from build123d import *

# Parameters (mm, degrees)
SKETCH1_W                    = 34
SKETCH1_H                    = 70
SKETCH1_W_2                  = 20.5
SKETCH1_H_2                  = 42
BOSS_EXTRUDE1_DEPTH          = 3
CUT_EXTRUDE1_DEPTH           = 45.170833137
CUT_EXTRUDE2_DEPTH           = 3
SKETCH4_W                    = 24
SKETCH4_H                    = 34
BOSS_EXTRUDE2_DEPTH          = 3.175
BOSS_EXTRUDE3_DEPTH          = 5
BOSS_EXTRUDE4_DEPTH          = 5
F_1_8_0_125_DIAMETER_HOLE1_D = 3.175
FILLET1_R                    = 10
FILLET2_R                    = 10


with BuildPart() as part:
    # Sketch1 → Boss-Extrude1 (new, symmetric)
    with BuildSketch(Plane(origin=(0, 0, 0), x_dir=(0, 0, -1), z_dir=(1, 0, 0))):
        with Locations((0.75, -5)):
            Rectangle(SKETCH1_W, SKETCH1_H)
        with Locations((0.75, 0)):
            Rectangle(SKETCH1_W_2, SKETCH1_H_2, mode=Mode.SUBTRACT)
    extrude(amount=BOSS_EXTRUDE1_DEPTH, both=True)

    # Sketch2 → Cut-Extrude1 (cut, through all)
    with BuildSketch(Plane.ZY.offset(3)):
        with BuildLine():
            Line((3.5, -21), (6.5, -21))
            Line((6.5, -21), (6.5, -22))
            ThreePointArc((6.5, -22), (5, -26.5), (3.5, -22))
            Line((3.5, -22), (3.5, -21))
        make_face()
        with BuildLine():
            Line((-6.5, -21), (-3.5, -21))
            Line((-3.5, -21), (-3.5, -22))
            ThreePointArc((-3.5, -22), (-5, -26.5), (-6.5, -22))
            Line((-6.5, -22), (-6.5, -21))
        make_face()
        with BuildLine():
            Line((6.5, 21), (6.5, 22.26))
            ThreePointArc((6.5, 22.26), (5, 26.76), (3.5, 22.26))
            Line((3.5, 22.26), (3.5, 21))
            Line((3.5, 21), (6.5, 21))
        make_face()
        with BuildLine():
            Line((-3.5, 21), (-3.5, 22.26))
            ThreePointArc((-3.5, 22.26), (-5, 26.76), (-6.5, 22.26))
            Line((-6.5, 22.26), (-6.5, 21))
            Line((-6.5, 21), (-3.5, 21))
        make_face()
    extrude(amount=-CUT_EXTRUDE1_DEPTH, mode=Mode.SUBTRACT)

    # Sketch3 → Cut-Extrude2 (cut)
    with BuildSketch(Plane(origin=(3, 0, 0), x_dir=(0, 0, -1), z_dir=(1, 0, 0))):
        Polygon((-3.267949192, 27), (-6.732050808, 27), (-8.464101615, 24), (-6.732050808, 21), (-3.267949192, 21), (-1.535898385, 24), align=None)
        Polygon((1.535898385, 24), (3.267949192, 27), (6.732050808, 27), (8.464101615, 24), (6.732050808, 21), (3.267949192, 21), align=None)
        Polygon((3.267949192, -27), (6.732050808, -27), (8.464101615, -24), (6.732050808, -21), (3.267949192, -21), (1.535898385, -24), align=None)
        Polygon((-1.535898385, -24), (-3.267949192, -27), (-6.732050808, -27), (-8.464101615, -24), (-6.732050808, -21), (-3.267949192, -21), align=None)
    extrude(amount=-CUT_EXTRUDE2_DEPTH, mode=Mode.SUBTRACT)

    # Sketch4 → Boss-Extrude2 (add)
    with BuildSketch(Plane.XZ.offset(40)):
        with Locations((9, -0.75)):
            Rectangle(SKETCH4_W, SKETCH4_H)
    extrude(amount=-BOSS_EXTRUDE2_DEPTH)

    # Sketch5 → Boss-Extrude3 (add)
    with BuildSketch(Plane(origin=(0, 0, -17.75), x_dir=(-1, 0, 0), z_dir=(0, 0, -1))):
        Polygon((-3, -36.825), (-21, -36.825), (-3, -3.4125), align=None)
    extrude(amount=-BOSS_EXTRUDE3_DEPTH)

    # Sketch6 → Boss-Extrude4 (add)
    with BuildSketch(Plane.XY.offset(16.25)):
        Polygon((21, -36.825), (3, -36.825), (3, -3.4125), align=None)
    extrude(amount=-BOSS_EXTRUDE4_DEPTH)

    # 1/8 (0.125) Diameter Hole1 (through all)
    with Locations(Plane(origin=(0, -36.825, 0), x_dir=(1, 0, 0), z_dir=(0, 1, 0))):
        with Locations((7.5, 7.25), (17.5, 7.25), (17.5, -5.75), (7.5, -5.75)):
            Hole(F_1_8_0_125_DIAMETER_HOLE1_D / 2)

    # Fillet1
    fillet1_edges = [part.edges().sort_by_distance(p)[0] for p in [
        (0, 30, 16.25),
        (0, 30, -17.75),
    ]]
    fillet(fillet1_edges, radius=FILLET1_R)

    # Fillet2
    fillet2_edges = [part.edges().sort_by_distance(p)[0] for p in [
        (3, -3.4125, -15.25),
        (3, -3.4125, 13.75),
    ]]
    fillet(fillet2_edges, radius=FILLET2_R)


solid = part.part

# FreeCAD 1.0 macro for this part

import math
import FreeCAD as App
import Part
import Sketcher
Q = App.Units.Quantity


def edges_at(feature, points):
    """Names of the edges that pass closest to the given points."""
    edges = feature.Shape.Edges
    near = lambda p: min(range(len(edges)), key=lambda i: edges[i].distToShape(Part.Vertex(*p))[0])
    return sorted({f"Edge{near(p) + 1}" for p in points})

doc = App.newDocument("Part")
body = doc.addObject("PartDesign::Body", "Body")

# Sketch on YZ plane
sketch1 = body.newObject("Sketcher::SketchObject", "Sketch")
sketch1.AttachmentSupport = (doc.getObject("YZ_Plane"), [""])
sketch1.MapMode = "FlatFace"
sketch1.addGeometry(Part.LineSegment(App.Vector(30, 16.25, 0), App.Vector(-40, 16.25, 0)), False)
sketch1.addGeometry(Part.LineSegment(App.Vector(-40, 16.25, 0), App.Vector(-40, -17.75, 0)), False)
sketch1.addGeometry(Part.LineSegment(App.Vector(-40, -17.75, 0), App.Vector(30, -17.75, 0)), False)
sketch1.addGeometry(Part.LineSegment(App.Vector(30, -17.75, 0), App.Vector(30, 16.25, 0)), False)
sketch1.addGeometry(Part.LineSegment(App.Vector(-21, -11, 0), App.Vector(-21, 9.5, 0)), False)
sketch1.addGeometry(Part.LineSegment(App.Vector(-21, 9.5, 0), App.Vector(21, 9.5, 0)), False)
sketch1.addGeometry(Part.LineSegment(App.Vector(21, 9.5, 0), App.Vector(21, -11, 0)), False)
sketch1.addGeometry(Part.LineSegment(App.Vector(21, -11, 0), App.Vector(-21, -11, 0)), False)
sketch1.addConstraint(Sketcher.Constraint("Coincident", 0, 2, 1, 1))
sketch1.addConstraint(Sketcher.Constraint("Coincident", 1, 2, 2, 1))
sketch1.addConstraint(Sketcher.Constraint("Coincident", 2, 2, 3, 1))
sketch1.addConstraint(Sketcher.Constraint("Coincident", 3, 2, 0, 1))
sketch1.addConstraint(Sketcher.Constraint("Coincident", 4, 2, 5, 1))
sketch1.addConstraint(Sketcher.Constraint("Coincident", 5, 2, 6, 1))
sketch1.addConstraint(Sketcher.Constraint("Coincident", 6, 2, 7, 1))
sketch1.addConstraint(Sketcher.Constraint("Coincident", 7, 2, 4, 1))
sketch1.addConstraint(Sketcher.Constraint("Horizontal", 0))
sketch1.addConstraint(Sketcher.Constraint("Vertical", 1))
sketch1.addConstraint(Sketcher.Constraint("Horizontal", 2))
sketch1.addConstraint(Sketcher.Constraint("Vertical", 3))
sketch1.addConstraint(Sketcher.Constraint("Vertical", 4))
sketch1.addConstraint(Sketcher.Constraint("Horizontal", 5))
sketch1.addConstraint(Sketcher.Constraint("Vertical", 6))
sketch1.addConstraint(Sketcher.Constraint("Horizontal", 7))
sketch1.addConstraint(Sketcher.Constraint("DistanceX", 0, 2, 0, 1, Q("70 mm")))
sketch1.addConstraint(Sketcher.Constraint("DistanceX", 5, 1, 5, 2, Q("42 mm")))
sketch1.addConstraint(Sketcher.Constraint("DistanceY", 1, 2, 1, 1, Q("34 mm")))
sketch1.addConstraint(Sketcher.Constraint("DistanceY", 4, 1, 4, 2, Q("20.5 mm")))
sketch1.addConstraint(Sketcher.Constraint("DistanceX", 0, 2, -1, 1, Q("40 mm")))
sketch1.addConstraint(Sketcher.Constraint("DistanceX", 4, 2, -1, 1, Q("21 mm")))
sketch1.addConstraint(Sketcher.Constraint("DistanceY", 6, 2, -1, 1, Q("11 mm")))
sketch1.addConstraint(Sketcher.Constraint("DistanceY", -1, 1, 0, 2, Q("16.25 mm")))
pad1 = body.newObject("PartDesign::Pad", "Pad")
pad1.Profile = sketch1
pad1.Length = 6
pad1.Midplane = True

# Sketch on YZ plane
sketch2 = body.newObject("Sketcher::SketchObject", "Sketch001")
sketch2.AttachmentSupport = (doc.getObject("YZ_Plane"), [""])
sketch2.MapMode = "FlatFace"
sketch2.AttachmentOffset = App.Placement(App.Vector(0, 0, -3), App.Rotation())
sketch2.addGeometry(Part.LineSegment(App.Vector(-21, 6.5, 0), App.Vector(-21, 3.5, 0)), False)
sketch2.addGeometry(Part.LineSegment(App.Vector(-21, 3.5, 0), App.Vector(-22, 3.5, 0)), False)
sketch2.addGeometry(Part.ArcOfCircle(Part.Circle(App.Vector(-24, 5, 0), App.Vector(0, 0, 1), 2.5), math.radians(36.869898), math.radians(323.130102)), False)
sketch2.addGeometry(Part.LineSegment(App.Vector(-22, 6.5, 0), App.Vector(-21, 6.5, 0)), False)
sketch2.addGeometry(Part.LineSegment(App.Vector(-21, -3.5, 0), App.Vector(-21, -6.5, 0)), False)
sketch2.addGeometry(Part.LineSegment(App.Vector(-21, -6.5, 0), App.Vector(-22, -6.5, 0)), False)
sketch2.addGeometry(Part.ArcOfCircle(Part.Circle(App.Vector(-24, -5, 0), App.Vector(0, 0, 1), 2.5), math.radians(36.869898), math.radians(323.130102)), False)
sketch2.addGeometry(Part.LineSegment(App.Vector(-22, -3.5, 0), App.Vector(-21, -3.5, 0)), False)
sketch2.addGeometry(Part.LineSegment(App.Vector(21, 6.5, 0), App.Vector(22.26, 6.5, 0)), False)
sketch2.addGeometry(Part.ArcOfCircle(Part.Circle(App.Vector(24.26, 5, 0), App.Vector(0, 0, 1), 2.5), math.radians(-143.130102), math.radians(143.130102)), False)
sketch2.addGeometry(Part.LineSegment(App.Vector(22.26, 3.5, 0), App.Vector(21, 3.5, 0)), False)
sketch2.addGeometry(Part.LineSegment(App.Vector(21, 3.5, 0), App.Vector(21, 6.5, 0)), False)
sketch2.addGeometry(Part.LineSegment(App.Vector(21, -3.5, 0), App.Vector(22.26, -3.5, 0)), False)
sketch2.addGeometry(Part.ArcOfCircle(Part.Circle(App.Vector(24.26, -5, 0), App.Vector(0, 0, 1), 2.5), math.radians(-143.130102), math.radians(143.130102)), False)
sketch2.addGeometry(Part.LineSegment(App.Vector(22.26, -6.5, 0), App.Vector(21, -6.5, 0)), False)
sketch2.addGeometry(Part.LineSegment(App.Vector(21, -6.5, 0), App.Vector(21, -3.5, 0)), False)
sketch2.addConstraint(Sketcher.Constraint("Coincident", 0, 2, 1, 1))
sketch2.addConstraint(Sketcher.Constraint("Coincident", 1, 2, 2, 2))
sketch2.addConstraint(Sketcher.Constraint("Coincident", 2, 1, 3, 1))
sketch2.addConstraint(Sketcher.Constraint("Coincident", 3, 2, 0, 1))
sketch2.addConstraint(Sketcher.Constraint("Coincident", 4, 2, 5, 1))
sketch2.addConstraint(Sketcher.Constraint("Coincident", 5, 2, 6, 2))
sketch2.addConstraint(Sketcher.Constraint("Coincident", 6, 1, 7, 1))
sketch2.addConstraint(Sketcher.Constraint("Coincident", 7, 2, 4, 1))
sketch2.addConstraint(Sketcher.Constraint("Coincident", 8, 2, 9, 2))
sketch2.addConstraint(Sketcher.Constraint("Coincident", 9, 1, 10, 1))
sketch2.addConstraint(Sketcher.Constraint("Coincident", 10, 2, 11, 1))
sketch2.addConstraint(Sketcher.Constraint("Coincident", 11, 2, 8, 1))
sketch2.addConstraint(Sketcher.Constraint("Coincident", 12, 2, 13, 2))
sketch2.addConstraint(Sketcher.Constraint("Coincident", 13, 1, 14, 1))
sketch2.addConstraint(Sketcher.Constraint("Coincident", 14, 2, 15, 1))
sketch2.addConstraint(Sketcher.Constraint("Coincident", 15, 2, 12, 1))
sketch2.addConstraint(Sketcher.Constraint("Vertical", 0))
sketch2.addConstraint(Sketcher.Constraint("Horizontal", 1))
sketch2.addConstraint(Sketcher.Constraint("Horizontal", 3))
sketch2.addConstraint(Sketcher.Constraint("Vertical", 4))
sketch2.addConstraint(Sketcher.Constraint("Horizontal", 5))
sketch2.addConstraint(Sketcher.Constraint("Horizontal", 7))
sketch2.addConstraint(Sketcher.Constraint("Horizontal", 8))
sketch2.addConstraint(Sketcher.Constraint("Horizontal", 10))
sketch2.addConstraint(Sketcher.Constraint("Vertical", 11))
sketch2.addConstraint(Sketcher.Constraint("Horizontal", 12))
sketch2.addConstraint(Sketcher.Constraint("Horizontal", 14))
sketch2.addConstraint(Sketcher.Constraint("Vertical", 15))
sketch2.addConstraint(Sketcher.Constraint("Equal", 2, 6))
sketch2.addConstraint(Sketcher.Constraint("Equal", 6, 9))
sketch2.addConstraint(Sketcher.Constraint("Equal", 9, 13))
sketch2.addConstraint(Sketcher.Constraint("Symmetric", 7, 2, 10, 2, -1, 1))
sketch2.addConstraint(Sketcher.Constraint("Symmetric", 3, 2, 14, 2, -1, 1))
sketch2.addConstraint(Sketcher.Constraint("Symmetric", 0, 2, 10, 2, -2))
sketch2.addConstraint(Sketcher.Constraint("Symmetric", 2, 3, 6, 3, -1))
sketch2.addConstraint(Sketcher.Constraint("Symmetric", 9, 3, 13, 3, -1))
sketch2.addConstraint(Sketcher.Constraint("Horizontal", 2, 3, 9, 3))
sketch2.addConstraint(Sketcher.Constraint("Horizontal", 3, 2, 8, 2))
sketch2.addConstraint(Sketcher.Constraint("Horizontal", 7, 2, 12, 2))
sketch2.addConstraint(Sketcher.Constraint("Horizontal", 5, 2, 13, 1))
sketch2.addConstraint(Sketcher.Constraint("Vertical", 1, 2, 2, 1))
sketch2.addConstraint(Sketcher.Constraint("Radius", 2, Q("2.5 mm")))
sketch2.addConstraint(Sketcher.Constraint("DistanceX", 1, 2, 1, 1, Q("1 mm")))
sketch2.addConstraint(Sketcher.Constraint("DistanceY", 0, 2, 0, 1, Q("3 mm")))
sketch2.addConstraint(Sketcher.Constraint("DistanceX", 2, 3, -1, 1, Q("24 mm")))
sketch2.addConstraint(Sketcher.Constraint("DistanceY", -1, 1, 2, 3, Q("5 mm")))
sketch2.addConstraint(Sketcher.Constraint("DistanceX", 8, 1, 8, 2, Q("1.26 mm")))
pocket1 = body.newObject("PartDesign::Pocket", "Pocket")
pocket1.Profile = sketch2
pocket1.Type = "ThroughAll"
pocket1.Reversed = True

# Sketch on YZ plane
sketch3 = body.newObject("Sketcher::SketchObject", "Sketch002")
sketch3.AttachmentSupport = (doc.getObject("YZ_Plane"), [""])
sketch3.MapMode = "FlatFace"
sketch3.AttachmentOffset = App.Placement(App.Vector(0, 0, 3), App.Rotation())
sketch3.addGeometry(Part.LineSegment(App.Vector(27, 3.267949, 0), App.Vector(27, 6.732051, 0)), False)
sketch3.addGeometry(Part.LineSegment(App.Vector(27, 6.732051, 0), App.Vector(24, 8.464102, 0)), False)
sketch3.addGeometry(Part.LineSegment(App.Vector(24, 8.464102, 0), App.Vector(21, 6.732051, 0)), False)
sketch3.addGeometry(Part.LineSegment(App.Vector(21, 6.732051, 0), App.Vector(21, 3.267949, 0)), False)
sketch3.addGeometry(Part.LineSegment(App.Vector(21, 3.267949, 0), App.Vector(24, 1.535898, 0)), False)
sketch3.addGeometry(Part.LineSegment(App.Vector(24, 1.535898, 0), App.Vector(27, 3.267949, 0)), False)
sketch3.addGeometry(Part.LineSegment(App.Vector(27, -3.267949, 0), App.Vector(24, -1.535898, 0)), False)
sketch3.addGeometry(Part.LineSegment(App.Vector(24, -1.535898, 0), App.Vector(21, -3.267949, 0)), False)
sketch3.addGeometry(Part.LineSegment(App.Vector(21, -3.267949, 0), App.Vector(21, -6.732051, 0)), False)
sketch3.addGeometry(Part.LineSegment(App.Vector(21, -6.732051, 0), App.Vector(24, -8.464102, 0)), False)
sketch3.addGeometry(Part.LineSegment(App.Vector(24, -8.464102, 0), App.Vector(27, -6.732051, 0)), False)
sketch3.addGeometry(Part.LineSegment(App.Vector(27, -6.732051, 0), App.Vector(27, -3.267949, 0)), False)
sketch3.addGeometry(Part.LineSegment(App.Vector(-27, -3.267949, 0), App.Vector(-27, -6.732051, 0)), False)
sketch3.addGeometry(Part.LineSegment(App.Vector(-27, -6.732051, 0), App.Vector(-24, -8.464102, 0)), False)
sketch3.addGeometry(Part.LineSegment(App.Vector(-24, -8.464102, 0), App.Vector(-21, -6.732051, 0)), False)
sketch3.addGeometry(Part.LineSegment(App.Vector(-21, -6.732051, 0), App.Vector(-21, -3.267949, 0)), False)
sketch3.addGeometry(Part.LineSegment(App.Vector(-21, -3.267949, 0), App.Vector(-24, -1.535898, 0)), False)
sketch3.addGeometry(Part.LineSegment(App.Vector(-24, -1.535898, 0), App.Vector(-27, -3.267949, 0)), False)
sketch3.addGeometry(Part.LineSegment(App.Vector(-27, 3.267949, 0), App.Vector(-24, 1.535898, 0)), False)
sketch3.addGeometry(Part.LineSegment(App.Vector(-24, 1.535898, 0), App.Vector(-21, 3.267949, 0)), False)
sketch3.addGeometry(Part.LineSegment(App.Vector(-21, 3.267949, 0), App.Vector(-21, 6.732051, 0)), False)
sketch3.addGeometry(Part.LineSegment(App.Vector(-21, 6.732051, 0), App.Vector(-24, 8.464102, 0)), False)
sketch3.addGeometry(Part.LineSegment(App.Vector(-24, 8.464102, 0), App.Vector(-27, 6.732051, 0)), False)
sketch3.addGeometry(Part.LineSegment(App.Vector(-27, 6.732051, 0), App.Vector(-27, 3.267949, 0)), False)
sketch3.addConstraint(Sketcher.Constraint("Coincident", 0, 2, 1, 1))
sketch3.addConstraint(Sketcher.Constraint("Coincident", 1, 2, 2, 1))
sketch3.addConstraint(Sketcher.Constraint("Coincident", 2, 2, 3, 1))
sketch3.addConstraint(Sketcher.Constraint("Coincident", 3, 2, 4, 1))
sketch3.addConstraint(Sketcher.Constraint("Coincident", 4, 2, 5, 1))
sketch3.addConstraint(Sketcher.Constraint("Coincident", 5, 2, 0, 1))
sketch3.addConstraint(Sketcher.Constraint("Coincident", 6, 2, 7, 1))
sketch3.addConstraint(Sketcher.Constraint("Coincident", 7, 2, 8, 1))
sketch3.addConstraint(Sketcher.Constraint("Coincident", 8, 2, 9, 1))
sketch3.addConstraint(Sketcher.Constraint("Coincident", 9, 2, 10, 1))
sketch3.addConstraint(Sketcher.Constraint("Coincident", 10, 2, 11, 1))
sketch3.addConstraint(Sketcher.Constraint("Coincident", 11, 2, 6, 1))
sketch3.addConstraint(Sketcher.Constraint("Coincident", 12, 2, 13, 1))
sketch3.addConstraint(Sketcher.Constraint("Coincident", 13, 2, 14, 1))
sketch3.addConstraint(Sketcher.Constraint("Coincident", 14, 2, 15, 1))
sketch3.addConstraint(Sketcher.Constraint("Coincident", 15, 2, 16, 1))
sketch3.addConstraint(Sketcher.Constraint("Coincident", 16, 2, 17, 1))
sketch3.addConstraint(Sketcher.Constraint("Coincident", 17, 2, 12, 1))
sketch3.addConstraint(Sketcher.Constraint("Coincident", 18, 2, 19, 1))
sketch3.addConstraint(Sketcher.Constraint("Coincident", 19, 2, 20, 1))
sketch3.addConstraint(Sketcher.Constraint("Coincident", 20, 2, 21, 1))
sketch3.addConstraint(Sketcher.Constraint("Coincident", 21, 2, 22, 1))
sketch3.addConstraint(Sketcher.Constraint("Coincident", 22, 2, 23, 1))
sketch3.addConstraint(Sketcher.Constraint("Coincident", 23, 2, 18, 1))
sketch3.addConstraint(Sketcher.Constraint("Vertical", 0))
sketch3.addConstraint(Sketcher.Constraint("Vertical", 3))
sketch3.addConstraint(Sketcher.Constraint("Vertical", 8))
sketch3.addConstraint(Sketcher.Constraint("Vertical", 11))
sketch3.addConstraint(Sketcher.Constraint("Vertical", 12))
sketch3.addConstraint(Sketcher.Constraint("Vertical", 15))
sketch3.addConstraint(Sketcher.Constraint("Vertical", 20))
sketch3.addConstraint(Sketcher.Constraint("Vertical", 23))
sketch3.addConstraint(Sketcher.Constraint("Symmetric", 0, 2, 12, 2, -1, 1))
sketch3.addConstraint(Sketcher.Constraint("Symmetric", 1, 2, 13, 2, -1, 1))
sketch3.addConstraint(Sketcher.Constraint("Symmetric", 2, 2, 14, 2, -1, 1))
sketch3.addConstraint(Sketcher.Constraint("Symmetric", 4, 2, 16, 2, -1, 1))
sketch3.addConstraint(Sketcher.Constraint("Symmetric", 6, 2, 18, 2, -1, 1))
sketch3.addConstraint(Sketcher.Constraint("Symmetric", 7, 2, 19, 2, -1, 1))
sketch3.addConstraint(Sketcher.Constraint("Symmetric", 9, 2, 21, 2, -1, 1))
sketch3.addConstraint(Sketcher.Constraint("Symmetric", 10, 2, 22, 2, -1, 1))
sketch3.addConstraint(Sketcher.Constraint("Symmetric", 10, 2, 12, 2, -2))
sketch3.addConstraint(Sketcher.Constraint("Symmetric", 9, 2, 13, 2, -2))
sketch3.addConstraint(Sketcher.Constraint("Symmetric", 8, 2, 14, 2, -2))
sketch3.addConstraint(Sketcher.Constraint("Symmetric", 6, 2, 16, 2, -2))
sketch3.addConstraint(Sketcher.Constraint("Parallel", 1, 4))
sketch3.addConstraint(Sketcher.Constraint("Parallel", 2, 5))
sketch3.addConstraint(Sketcher.Constraint("Parallel", 4, 6))
sketch3.addConstraint(Sketcher.Constraint("Parallel", 5, 7))
sketch3.addConstraint(Sketcher.Constraint("Parallel", 6, 9))
sketch3.addConstraint(Sketcher.Constraint("Parallel", 13, 16))
sketch3.addConstraint(Sketcher.Constraint("Parallel", 14, 17))
sketch3.addConstraint(Sketcher.Constraint("Parallel", 16, 18))
sketch3.addConstraint(Sketcher.Constraint("Parallel", 18, 21))
sketch3.addConstraint(Sketcher.Constraint("Horizontal", 0, 2, 2, 2))
sketch3.addConstraint(Sketcher.Constraint("Horizontal", 3, 2, 5, 2))
sketch3.addConstraint(Sketcher.Constraint("Angle", 1, Q("150 deg")))
sketch3.addConstraint(Sketcher.Constraint("DistanceX", -1, 1, 0, 2, Q("27 mm")))
sketch3.addConstraint(Sketcher.Constraint("DistanceX", -1, 1, 1, 2, Q("24 mm")))
sketch3.addConstraint(Sketcher.Constraint("DistanceY", 7, 2, 2, 2, Q("10 mm")))
sketch3.addConstraint(Sketcher.Constraint("DistanceY", 0, 1, 0, 2, Q("3.464102 mm")))
pocket2 = body.newObject("PartDesign::Pocket", "Pocket001")
pocket2.Profile = sketch3
pocket2.Length = 3

# Sketch on XZ plane
sketch4 = body.newObject("Sketcher::SketchObject", "Sketch003")
sketch4.AttachmentSupport = (doc.getObject("XZ_Plane"), [""])
sketch4.MapMode = "FlatFace"
sketch4.AttachmentOffset = App.Placement(App.Vector(0, 0, 40), App.Rotation())
sketch4.addGeometry(Part.LineSegment(App.Vector(-3, 16.25, 0), App.Vector(-3, -17.75, 0)), False)
sketch4.addGeometry(Part.LineSegment(App.Vector(-3, -17.75, 0), App.Vector(21, -17.75, 0)), False)
sketch4.addGeometry(Part.LineSegment(App.Vector(21, -17.75, 0), App.Vector(21, 16.25, 0)), False)
sketch4.addGeometry(Part.LineSegment(App.Vector(21, 16.25, 0), App.Vector(-3, 16.25, 0)), False)
sketch4.addConstraint(Sketcher.Constraint("Coincident", 0, 2, 1, 1))
sketch4.addConstraint(Sketcher.Constraint("Coincident", 1, 2, 2, 1))
sketch4.addConstraint(Sketcher.Constraint("Coincident", 2, 2, 3, 1))
sketch4.addConstraint(Sketcher.Constraint("Coincident", 3, 2, 0, 1))
sketch4.addConstraint(Sketcher.Constraint("Vertical", 0))
sketch4.addConstraint(Sketcher.Constraint("Horizontal", 1))
sketch4.addConstraint(Sketcher.Constraint("Vertical", 2))
sketch4.addConstraint(Sketcher.Constraint("Horizontal", 3))
sketch4.addConstraint(Sketcher.Constraint("DistanceX", 1, 1, 1, 2, Q("24 mm")))
sketch4.addConstraint(Sketcher.Constraint("DistanceY", 0, 2, 0, 1, Q("34 mm")))
sketch4.addConstraint(Sketcher.Constraint("DistanceX", 0, 2, -1, 1, Q("3 mm")))
sketch4.addConstraint(Sketcher.Constraint("DistanceY", 0, 2, -1, 1, Q("17.75 mm")))
pad2 = body.newObject("PartDesign::Pad", "Pad001")
pad2.Profile = sketch4
pad2.Length = 3.175
pad2.Reversed = True

# Sketch on XY plane
sketch5 = body.newObject("Sketcher::SketchObject", "Sketch004")
sketch5.AttachmentSupport = (doc.getObject("XY_Plane"), [""])
sketch5.MapMode = "FlatFace"
sketch5.AttachmentOffset = App.Placement(App.Vector(0, 0, -17.75), App.Rotation())
sketch5.addGeometry(Part.LineSegment(App.Vector(21, -36.825, 0), App.Vector(3, -36.825, 0)), False)
sketch5.addGeometry(Part.LineSegment(App.Vector(3, -36.825, 0), App.Vector(3, -3.4125, 0)), False)
sketch5.addGeometry(Part.LineSegment(App.Vector(3, -3.4125, 0), App.Vector(21, -36.825, 0)), False)
sketch5.addConstraint(Sketcher.Constraint("Coincident", 0, 2, 1, 1))
sketch5.addConstraint(Sketcher.Constraint("Coincident", 1, 2, 2, 1))
sketch5.addConstraint(Sketcher.Constraint("Coincident", 2, 2, 0, 1))
sketch5.addConstraint(Sketcher.Constraint("Horizontal", 0))
sketch5.addConstraint(Sketcher.Constraint("Vertical", 1))
sketch5.addConstraint(Sketcher.Constraint("DistanceX", 0, 2, 0, 1, Q("18 mm")))
sketch5.addConstraint(Sketcher.Constraint("DistanceX", -1, 1, 0, 2, Q("3 mm")))
sketch5.addConstraint(Sketcher.Constraint("DistanceY", 1, 1, 1, 2, Q("33.4125 mm")))
sketch5.addConstraint(Sketcher.Constraint("DistanceY", 0, 2, -1, 1, Q("36.825 mm")))
pad3 = body.newObject("PartDesign::Pad", "Pad002")
pad3.Profile = sketch5
pad3.Length = 5

# Sketch on XY plane
sketch6 = body.newObject("Sketcher::SketchObject", "Sketch005")
sketch6.AttachmentSupport = (doc.getObject("XY_Plane"), [""])
sketch6.MapMode = "FlatFace"
sketch6.AttachmentOffset = App.Placement(App.Vector(0, 0, 16.25), App.Rotation())
sketch6.addGeometry(Part.LineSegment(App.Vector(3, -36.825, 0), App.Vector(21, -36.825, 0)), False)
sketch6.addGeometry(Part.LineSegment(App.Vector(21, -36.825, 0), App.Vector(3, -3.4125, 0)), False)
sketch6.addGeometry(Part.LineSegment(App.Vector(3, -3.4125, 0), App.Vector(3, -36.825, 0)), False)
sketch6.addConstraint(Sketcher.Constraint("Coincident", 0, 2, 1, 1))
sketch6.addConstraint(Sketcher.Constraint("Coincident", 1, 2, 2, 1))
sketch6.addConstraint(Sketcher.Constraint("Coincident", 2, 2, 0, 1))
sketch6.addConstraint(Sketcher.Constraint("Horizontal", 0))
sketch6.addConstraint(Sketcher.Constraint("Vertical", 2))
sketch6.addConstraint(Sketcher.Constraint("DistanceX", 0, 1, 0, 2, Q("18 mm")))
sketch6.addConstraint(Sketcher.Constraint("DistanceX", -1, 1, 0, 2, Q("21 mm")))
sketch6.addConstraint(Sketcher.Constraint("DistanceY", 2, 2, 2, 1, Q("33.4125 mm")))
sketch6.addConstraint(Sketcher.Constraint("DistanceY", 0, 2, -1, 1, Q("36.825 mm")))
pad4 = body.newObject("PartDesign::Pad", "Pad003")
pad4.Profile = sketch6
pad4.Length = 5
pad4.Reversed = True

# Sketch on XZ plane
sketch7 = body.newObject("Sketcher::SketchObject", "Sketch006")
sketch7.AttachmentSupport = (doc.getObject("XZ_Plane"), [""])
sketch7.MapMode = "FlatFace"
sketch7.AttachmentOffset = App.Placement(App.Vector(0, 0, 36.825), App.Rotation())
sketch7.addGeometry(Part.Circle(App.Vector(7.5, -7.25, 0), App.Vector(0, 0, 1), 1.5875), False)
sketch7.addGeometry(Part.Circle(App.Vector(17.5, -7.25, 0), App.Vector(0, 0, 1), 1.5875), False)
sketch7.addGeometry(Part.Circle(App.Vector(17.5, 5.75, 0), App.Vector(0, 0, 1), 1.5875), False)
sketch7.addGeometry(Part.Circle(App.Vector(7.5, 5.75, 0), App.Vector(0, 0, 1), 1.5875), False)
sketch7.addConstraint(Sketcher.Constraint("Equal", 0, 1))
sketch7.addConstraint(Sketcher.Constraint("Equal", 1, 2))
sketch7.addConstraint(Sketcher.Constraint("Equal", 2, 3))
sketch7.addConstraint(Sketcher.Constraint("Horizontal", 0, 3, 1, 3))
sketch7.addConstraint(Sketcher.Constraint("Horizontal", 2, 3, 3, 3))
sketch7.addConstraint(Sketcher.Constraint("Vertical", 1, 3, 2, 3))
sketch7.addConstraint(Sketcher.Constraint("Vertical", 0, 3, 3, 3))
sketch7.addConstraint(Sketcher.Constraint("Diameter", 0, Q("3.175 mm")))
sketch7.addConstraint(Sketcher.Constraint("DistanceX", 0, 3, 1, 3, Q("10 mm")))
sketch7.addConstraint(Sketcher.Constraint("DistanceY", 1, 3, 2, 3, Q("13 mm")))
sketch7.addConstraint(Sketcher.Constraint("DistanceX", -1, 1, 0, 3, Q("7.5 mm")))
sketch7.addConstraint(Sketcher.Constraint("DistanceY", 0, 3, -1, 1, Q("7.25 mm")))
doc.recompute()
hole = body.newObject("PartDesign::Hole", "Hole")
hole.Profile = sketch7
hole.ThreadType = "None"
hole.Diameter = 3.175
hole.DepthType = "ThroughAll"
hole.Reversed = True
doc.recompute()

fillet = body.newObject("PartDesign::Fillet", "Fillet")
fillet.Base = (hole, edges_at(hole, [(0, 30, 16.25), (0, 30, -17.75)]))
fillet.Radius = 10
doc.recompute()

fillet2 = body.newObject("PartDesign::Fillet", "Fillet001")
fillet2.Base = (fillet, edges_at(fillet, [(3, -3.413, -15.25), (3, -3.413, 13.75)]))
fillet2.Radius = 10

doc.recompute()
